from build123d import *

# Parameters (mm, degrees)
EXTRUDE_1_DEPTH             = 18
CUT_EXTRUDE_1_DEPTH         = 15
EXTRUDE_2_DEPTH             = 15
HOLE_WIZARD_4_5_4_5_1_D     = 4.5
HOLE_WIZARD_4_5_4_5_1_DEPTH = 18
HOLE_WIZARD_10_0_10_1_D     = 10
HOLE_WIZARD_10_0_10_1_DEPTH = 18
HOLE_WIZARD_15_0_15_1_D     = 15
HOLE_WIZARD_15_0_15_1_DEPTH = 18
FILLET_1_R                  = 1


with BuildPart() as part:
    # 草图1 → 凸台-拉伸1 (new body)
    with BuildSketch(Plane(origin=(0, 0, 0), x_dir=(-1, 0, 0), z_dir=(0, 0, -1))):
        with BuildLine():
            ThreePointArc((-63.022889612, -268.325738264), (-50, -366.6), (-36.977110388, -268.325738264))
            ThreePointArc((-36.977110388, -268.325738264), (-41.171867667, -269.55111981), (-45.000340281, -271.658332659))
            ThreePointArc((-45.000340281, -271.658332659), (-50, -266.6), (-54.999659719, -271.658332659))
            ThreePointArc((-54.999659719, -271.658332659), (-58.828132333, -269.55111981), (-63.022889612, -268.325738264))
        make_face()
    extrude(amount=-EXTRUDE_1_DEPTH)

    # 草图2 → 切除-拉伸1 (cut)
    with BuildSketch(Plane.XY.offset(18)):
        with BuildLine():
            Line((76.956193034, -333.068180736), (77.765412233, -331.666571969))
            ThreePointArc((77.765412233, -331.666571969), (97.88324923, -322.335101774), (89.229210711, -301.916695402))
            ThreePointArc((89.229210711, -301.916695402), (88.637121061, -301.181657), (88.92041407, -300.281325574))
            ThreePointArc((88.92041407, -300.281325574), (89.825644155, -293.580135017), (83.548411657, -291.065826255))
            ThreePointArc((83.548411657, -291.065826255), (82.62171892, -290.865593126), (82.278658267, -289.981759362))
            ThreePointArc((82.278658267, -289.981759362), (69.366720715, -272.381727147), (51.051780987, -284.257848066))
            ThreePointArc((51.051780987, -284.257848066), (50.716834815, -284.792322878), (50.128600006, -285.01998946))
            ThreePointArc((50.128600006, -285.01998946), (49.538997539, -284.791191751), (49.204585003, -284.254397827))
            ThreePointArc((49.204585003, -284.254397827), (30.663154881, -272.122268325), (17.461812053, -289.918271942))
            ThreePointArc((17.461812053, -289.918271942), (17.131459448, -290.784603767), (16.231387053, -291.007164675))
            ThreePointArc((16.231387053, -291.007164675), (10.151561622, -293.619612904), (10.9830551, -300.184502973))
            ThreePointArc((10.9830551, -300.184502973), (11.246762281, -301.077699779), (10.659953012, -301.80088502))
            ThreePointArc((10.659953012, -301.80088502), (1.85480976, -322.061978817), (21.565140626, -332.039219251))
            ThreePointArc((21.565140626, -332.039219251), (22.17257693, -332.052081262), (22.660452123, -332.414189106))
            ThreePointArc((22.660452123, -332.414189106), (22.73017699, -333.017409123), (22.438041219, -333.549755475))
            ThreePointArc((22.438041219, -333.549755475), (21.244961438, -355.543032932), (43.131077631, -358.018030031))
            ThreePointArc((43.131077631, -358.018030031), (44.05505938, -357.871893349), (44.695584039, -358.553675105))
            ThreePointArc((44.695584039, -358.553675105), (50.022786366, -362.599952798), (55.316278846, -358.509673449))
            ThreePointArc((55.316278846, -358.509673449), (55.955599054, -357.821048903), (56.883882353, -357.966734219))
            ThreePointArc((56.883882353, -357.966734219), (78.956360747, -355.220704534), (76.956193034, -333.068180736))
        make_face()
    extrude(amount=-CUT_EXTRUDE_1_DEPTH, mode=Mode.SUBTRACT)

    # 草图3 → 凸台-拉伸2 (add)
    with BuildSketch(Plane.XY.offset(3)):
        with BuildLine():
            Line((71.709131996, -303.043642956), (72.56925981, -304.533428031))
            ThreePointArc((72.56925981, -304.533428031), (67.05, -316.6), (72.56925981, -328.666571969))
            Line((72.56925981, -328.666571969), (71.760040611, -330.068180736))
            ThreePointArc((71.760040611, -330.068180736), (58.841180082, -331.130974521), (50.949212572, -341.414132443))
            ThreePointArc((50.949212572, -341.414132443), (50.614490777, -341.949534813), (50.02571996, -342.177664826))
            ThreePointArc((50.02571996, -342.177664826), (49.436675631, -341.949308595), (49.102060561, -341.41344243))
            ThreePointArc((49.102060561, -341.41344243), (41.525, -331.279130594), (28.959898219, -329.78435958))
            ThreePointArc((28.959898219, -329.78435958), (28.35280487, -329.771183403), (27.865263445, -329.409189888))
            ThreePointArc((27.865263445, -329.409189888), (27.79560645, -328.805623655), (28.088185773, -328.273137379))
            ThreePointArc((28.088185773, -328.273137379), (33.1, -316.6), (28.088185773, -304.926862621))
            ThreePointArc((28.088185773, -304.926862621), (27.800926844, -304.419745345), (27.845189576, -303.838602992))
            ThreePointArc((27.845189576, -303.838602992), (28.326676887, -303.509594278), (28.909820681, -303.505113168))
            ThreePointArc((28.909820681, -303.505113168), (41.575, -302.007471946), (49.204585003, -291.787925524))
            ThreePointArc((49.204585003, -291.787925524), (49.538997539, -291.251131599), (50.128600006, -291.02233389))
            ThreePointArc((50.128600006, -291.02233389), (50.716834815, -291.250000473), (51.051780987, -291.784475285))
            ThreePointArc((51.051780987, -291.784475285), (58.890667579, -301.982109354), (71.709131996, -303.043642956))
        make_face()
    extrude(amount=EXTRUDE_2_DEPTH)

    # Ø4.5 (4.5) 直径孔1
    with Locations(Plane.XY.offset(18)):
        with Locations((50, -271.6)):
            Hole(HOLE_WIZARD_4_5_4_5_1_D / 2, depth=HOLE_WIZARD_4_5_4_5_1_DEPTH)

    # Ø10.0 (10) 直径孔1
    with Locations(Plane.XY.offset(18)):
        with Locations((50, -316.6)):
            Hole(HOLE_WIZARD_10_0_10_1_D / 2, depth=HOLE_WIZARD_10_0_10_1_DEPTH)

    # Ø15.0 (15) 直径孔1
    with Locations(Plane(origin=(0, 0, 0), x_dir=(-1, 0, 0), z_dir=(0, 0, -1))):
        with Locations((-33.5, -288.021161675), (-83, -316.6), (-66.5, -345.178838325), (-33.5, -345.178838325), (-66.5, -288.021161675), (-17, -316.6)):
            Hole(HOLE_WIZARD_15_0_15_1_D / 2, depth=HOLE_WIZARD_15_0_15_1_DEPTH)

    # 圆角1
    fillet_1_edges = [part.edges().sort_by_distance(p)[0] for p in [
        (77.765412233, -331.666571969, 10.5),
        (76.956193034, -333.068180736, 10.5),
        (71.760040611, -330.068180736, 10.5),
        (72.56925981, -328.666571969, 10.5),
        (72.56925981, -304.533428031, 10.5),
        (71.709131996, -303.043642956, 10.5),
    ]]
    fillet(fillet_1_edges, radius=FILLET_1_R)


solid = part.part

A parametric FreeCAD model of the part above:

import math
import FreeCAD as App
import Part
import Sketcher
from FreeCAD import Vector
Q = App.Units.Quantity


def edges_at(feature, points):
    """Names of the edges that pass closest to the given points."""
    edges = feature.Shape.Edges
    near = lambda p: min(range(len(edges)), key=lambda i: edges[i].distToShape(Part.Vertex(*p))[0])
    return sorted({f"Edge{near(p) + 1}" for p in points})

doc = App.newDocument("Part")
body = doc.addObject("PartDesign::Body", "Body")

# Sketch on XY plane
sketch1 = body.newObject("Sketcher::SketchObject", "Sketch")
sketch1.AttachmentSupport = (doc.getObject("XY_Plane"), [""])
sketch1.MapMode = "FlatFace"
sketch1.addGeometry(Part.ArcOfCircle(Part.Circle(Vector(50, -317, 0), Vector(0, 0, 1), 50), math.radians(105), math.radians(435)), False)
sketch1.addGeometry(Part.ArcOfCircle(Part.Circle(Vector(34, -288, 0), Vector(0, 0, 1), 20), math.radians(55), math.radians(80)), False)
sketch1.addGeometry(Part.ArcOfCircle(Part.Circle(Vector(50, -272, 0), Vector(0, 0, 1), 5), math.radians(-1), math.radians(181)), False)
sketch1.addGeometry(Part.ArcOfCircle(Part.Circle(Vector(66, -288, 0), Vector(0, 0, 1), 20), math.radians(100), math.radians(125)), False)
sketch1.addConstraint(Sketcher.Constraint("Coincident", 0, 1, 1, 2))
sketch1.addConstraint(Sketcher.Constraint("Coincident", 1, 1, 2, 2))
sketch1.addConstraint(Sketcher.Constraint("Coincident", 2, 1, 3, 2))
sketch1.addConstraint(Sketcher.Constraint("Coincident", 3, 1, 0, 2))
sketch1.addConstraint(Sketcher.Constraint("Equal", 1, 3))
sketch1.addConstraint(Sketcher.Constraint("Horizontal", 1, 3, 3, 3))
sketch1.addConstraint(Sketcher.Constraint("Horizontal", 1, 1, 2, 1))
sketch1.addConstraint(Sketcher.Constraint("Horizontal", 0, 1, 3, 1))
sketch1.addConstraint(Sketcher.Constraint("Radius", 0, Q("50 mm")))
sketch1.addConstraint(Sketcher.Constraint("Radius", 1, Q("20 mm")))
sketch1.addConstraint(Sketcher.Constraint("Radius", 2, Q("5 mm")))
sketch1.addConstraint(Sketcher.Constraint("DistanceX", -1, 1, 0, 3, Q("50 mm")))
sketch1.addConstraint(Sketcher.Constraint("DistanceY", 0, 3, 2, 3, Q("45 mm")))
sketch1.addConstraint(Sketcher.Constraint("DistanceX", 1, 3, 3, 3, Q("33 mm")))
sketch1.addConstraint(Sketcher.Constraint("DistanceY", 0, 3, -1, 1, Q("316.6 mm")))
sketch1.addConstraint(Sketcher.Constraint("DistanceY", 1, 3, -1, 1, Q("288.021162 mm")))
pad1 = body.newObject("PartDesign::Pad", "Pad")
pad1.Profile = sketch1
pad1.Length = 18

# Sketch on XY plane
sketch2 = body.newObject("Sketcher::SketchObject", "Sketch001")
sketch2.AttachmentSupport = (doc.getObject("XY_Plane"), [""])
sketch2.MapMode = "FlatFace"
sketch2.AttachmentOffset = App.Placement(Vector(0, 0, 18), App.Rotation())
sketch2.addGeometry(Part.LineSegment(Vector(77, -333.1, 0), Vector(77.8, -331.7, 0)), False)
sketch2.addGeometry(Part.ArcOfCircle(Part.Circle(Vector(83, -316.6, 0), Vector(0, 0, 1), 15.9), math.radians(-109), math.radians(67)), False)
sketch2.addGeometry(Part.ArcOfCircle(Part.Circle(Vector(89.6, -301, 0), Vector(0, 0, 1), 1), math.radians(134), math.radians(247)), False)
sketch2.addGeometry(Part.ArcOfCircle(Part.Circle(Vector(85.1, -296.4, 0), Vector(0, 0, 1), 5.5), math.radians(-46), math.radians(106)), False)
sketch2.addGeometry(Part.ArcOfCircle(Part.Circle(Vector(83.3, -290.1, 0), Vector(0, 0, 1), 1), math.radians(173), math.radians(286)), False)
sketch2.addGeometry(Part.ArcOfCircle(Part.Circle(Vector(66.5, -288, 0), Vector(0, 0, 1), 15.9), math.radians(-7), math.radians(166)), False)
sketch2.addGeometry(Part.ArcOfCircle(Part.Circle(Vector(50.1, -284, 0), Vector(0, 0, 1), 1), math.radians(-87), math.radians(-14)), False)
sketch2.addGeometry(Part.ArcOfCircle(Part.Circle(Vector(50.2, -284, 0), Vector(0, 0, 1), 1), math.radians(-167), math.radians(-93)), False)
sketch2.addGeometry(Part.ArcOfCircle(Part.Circle(Vector(33.5, -288, 0), Vector(0, 0, 1), 16.1), math.radians(13), math.radians(187)), False)
sketch2.addGeometry(Part.ArcOfCircle(Part.Circle(Vector(16.5, -290, 0), Vector(0, 0, 1), 1), math.radians(-104), math.radians(7)), False)
sketch2.addGeometry(Part.ArcOfCircle(Part.Circle(Vector(14.9, -296.4, 0), Vector(0, 0, 1), 5.5), math.radians(76), math.radians(224)), False)
sketch2.addGeometry(Part.ArcOfCircle(Part.Circle(Vector(10.3, -300.9, 0), Vector(0, 0, 1), 1), math.radians(-67), math.radians(44)), False)
sketch2.addGeometry(Part.ArcOfCircle(Part.Circle(Vector(17, -316.6, 0), Vector(0, 0, 1), 16.1), math.radians(113), math.radians(286)), False)
sketch2.addGeometry(Part.ArcOfCircle(Part.Circle(Vector(21.8, -333, 0), Vector(0, 0, 1), 1), math.radians(36), math.radians(106)), False)
sketch2.addGeometry(Part.ArcOfCircle(Part.Circle(Vector(21.7, -332.8, 0), Vector(0, 0, 1), 1), math.radians(-46), math.radians(24)), False)
sketch2.addGeometry(Part.ArcOfCircle(Part.Circle(Vector(33.5, -345.2, 0), Vector(0, 0, 1), 16.1), math.radians(134), math.radians(307)), False)
sketch2.addGeometry(Part.ArcOfCircle(Part.Circle(Vector(43.7, -358.8, 0), Vector(0, 0, 1), 1), math.radians(15), math.radians(127)), False)
sketch2.addGeometry(Part.ArcOfCircle(Part.Circle(Vector(50, -357.1, 0), Vector(0, 0, 1), 5.5), math.radians(-165), math.radians(-15)), False)
sketch2.addGeometry(Part.ArcOfCircle(Part.Circle(Vector(56.3, -358.8, 0), Vector(0, 0, 1), 1), math.radians(53), math.radians(165)), False)
sketch2.addGeometry(Part.ArcOfCircle(Part.Circle(Vector(66.5, -345.2, 0), Vector(0, 0, 1), 16), math.radians(-127), math.radians(49)), False)
sketch2.addConstraint(Sketcher.Constraint("Coincident", 0, 2, 1, 1))
sketch2.addConstraint(Sketcher.Constraint("Tangent", 1, 2, 2, 2))
sketch2.addConstraint(Sketcher.Constraint("Tangent", 2, 1, 3, 1))
sketch2.addConstraint(Sketcher.Constraint("Tangent", 3, 2, 4, 2))
sketch2.addConstraint(Sketcher.Constraint("Tangent", 4, 1, 5, 1))
sketch2.addConstraint(Sketcher.Constraint("Tangent", 5, 2, 6, 2))
sketch2.addConstraint(Sketcher.Constraint("Coincident", 6, 1, 7, 2))
sketch2.addConstraint(Sketcher.Constraint("Tangent", 7, 1, 8, 1))
sketch2.addConstraint(Sketcher.Constraint("Tangent", 8, 2, 9, 2))
sketch2.addConstraint(Sketcher.Constraint("Tangent", 9, 1, 10, 1))
sketch2.addConstraint(Sketcher.Constraint("Tangent", 10, 2, 11, 2))
sketch2.addConstraint(Sketcher.Constraint("Tangent", 11, 1, 12, 1))
sketch2.addConstraint(Sketcher.Constraint("Tangent", 12, 2, 13, 2))
sketch2.addConstraint(Sketcher.Constraint("Coincident", 13, 1, 14, 2))
sketch2.addConstraint(Sketcher.Constraint("Tangent", 14, 1, 15, 1))
sketch2.addConstraint(Sketcher.Constraint("Tangent", 15, 2, 16, 2))
sketch2.addConstraint(Sketcher.Constraint("Tangent", 16, 1, 17, 1))
sketch2.addConstraint(Sketcher.Constraint("Tangent", 17, 2, 18, 2))
sketch2.addConstraint(Sketcher.Constraint("Tangent", 18, 1, 19, 1))
sketch2.addConstraint(Sketcher.Constraint("Coincident", 19, 2, 0, 1))
sketch2.addConstraint(Sketcher.Constraint("Equal", 2, 4))
sketch2.addConstraint(Sketcher.Constraint("Equal", 4, 6))
sketch2.addConstraint(Sketcher.Constraint("Equal", 6, 7))
sketch2.addConstraint(Sketcher.Constraint("Equal", 7, 9))
sketch2.addConstraint(Sketcher.Constraint("Equal", 3, 10))
sketch2.addConstraint(Sketcher.Constraint("Equal", 9, 11))
sketch2.addConstraint(Sketcher.Constraint("Equal", 11, 13))
sketch2.addConstraint(Sketcher.Constraint("Equal", 13, 14))
sketch2.addConstraint(Sketcher.Constraint("Equal", 14, 16))
sketch2.addConstraint(Sketcher.Constraint("Equal", 10, 17))
sketch2.addConstraint(Sketcher.Constraint("Equal", 16, 18))
sketch2.addConstraint(Sketcher.Constraint("Horizontal", 6, 3, 7, 3))
sketch2.addConstraint(Sketcher.Constraint("Horizontal", 5, 3, 8, 3))
sketch2.addConstraint(Sketcher.Constraint("Horizontal", 3, 3, 10, 3))
sketch2.addConstraint(Sketcher.Constraint("Horizontal", 1, 3, 12, 3))
sketch2.addConstraint(Sketcher.Constraint("Horizontal", 15, 3, 19, 3))
sketch2.addConstraint(Sketcher.Constraint("Vertical", 8, 3, 15, 3))
sketch2.addConstraint(Sketcher.Constraint("Vertical", 5, 3, 19, 3))
sketch2.addConstraint(Sketcher.Constraint("Radius", 2, Q("1 mm")))
sketch2.addConstraint(Sketcher.Constraint("Radius", 19, Q("16 mm")))
sketch2.addConstraint(Sketcher.Constraint("Radius", 3, Q("5.5 mm")))
sketch2.addConstraint(Sketcher.Constraint("Radius", 5, Q("15.9 mm")))
sketch2.addConstraint(Sketcher.Constraint("Radius", 12, Q("16.1 mm")))
sketch2.addConstraint(Sketcher.Constraint("Angle", 0, Q("60 deg")))
sketch2.addConstraint(Sketcher.Constraint("Radius", 1, Q("15.95 mm")))
sketch2.addConstraint(Sketcher.Constraint("Radius", 8, Q("16.15 mm")))
sketch2.addConstraint(Sketcher.Constraint("Radius", 15, Q("16.05 mm")))
sketch2.addConstraint(Sketcher.Constraint("DistanceX", -1, 1, 1, 3, Q("83 mm")))
sketch2.addConstraint(Sketcher.Constraint("DistanceX", -1, 1, 12, 3, Q("17 mm")))
sketch2.addConstraint(Sketcher.Constraint("DistanceX", -1, 1, 17, 3, Q("50 mm")))
sketch2.addConstraint(Sketcher.Constraint("DistanceY", 5, 3, 6, 3, Q("4 mm")))
sketch2.addConstraint(Sketcher.Constraint("DistanceX", 8, 3, 5, 3, Q("33 mm")))
sketch2.addConstraint(Sketcher.Constraint("DistanceY", 1, 3, -1, 1, Q("316.6 mm")))
sketch2.addConstraint(Sketcher.Constraint("DistanceX", -1, 1, 5, 3, Q("66.5 mm")))
sketch2.addConstraint(Sketcher.Constraint("DistanceY", 17, 3, -1, 1, Q("357.1 mm")))
sketch2.addConstraint(Sketcher.Constraint("DistanceY", 3, 3, -1, 1, Q("296.35 mm")))
sketch2.addConstraint(Sketcher.Constraint("DistanceY", 18, 3, 13, 3, Q("25.767801 mm")))
sketch2.addConstraint(Sketcher.Constraint("DistanceY", 2, 1, 3, 2, Q("9.215499 mm")))
sketch2.addConstraint(Sketcher.Constraint("DistanceX", 3, 2, 1, 2, Q("5.680799 mm")))
sketch2.addConstraint(Sketcher.Constraint("DistanceY", 11, 1, 11, 3, Q("0.9192 mm")))
sketch2.addConstraint(Sketcher.Constraint("DistanceX", 12, 2, 14, 1, Q("0.872901 mm")))
sketch2.addConstraint(Sketcher.Constraint("DistanceX", 15, 2, 17, 2, Q("12.185201 mm")))
sketch2.addConstraint(Sketcher.Constraint("Distance", 0, Q("1.618438 mm")))
pocket1 = body.newObject("PartDesign::Pocket", "Pocket")
pocket1.Profile = sketch2
pocket1.Length = 15

# Sketch on XY plane
sketch3 = body.newObject("Sketcher::SketchObject", "Sketch002")
sketch3.AttachmentSupport = (doc.getObject("XY_Plane"), [""])
sketch3.MapMode = "FlatFace"
sketch3.AttachmentOffset = App.Placement(Vector(0, 0, 3), App.Rotation())
sketch3.addGeometry(Part.LineSegment(Vector(72.6, -304.5, 0), Vector(71.7, -303, 0)), False)
sketch3.addGeometry(Part.ArcOfCircle(Part.Circle(Vector(66.5, -288, 0), Vector(0, 0, 1), 15.9), math.radians(-166), math.radians(-71)), False)
sketch3.addGeometry(Part.ArcOfCircle(Part.Circle(Vector(50.1, -292, 0), Vector(0, 0, 1), 1), math.radians(14), math.radians(87)), False)
sketch3.addGeometry(Part.ArcOfCircle(Part.Circle(Vector(50.2, -292, 0), Vector(0, 0, 1), 1), math.radians(93), math.radians(167)), False)
sketch3.addGeometry(Part.ArcOfCircle(Part.Circle(Vector(33.5, -288, 0), Vector(0, 0, 1), 16.2), math.radians(-107), math.radians(-13)), False)
sketch3.addGeometry(Part.ArcOfCircle(Part.Circle(Vector(28.6, -304.5, 0), Vector(0, 0, 1), 1), math.radians(73), math.radians(141)), False)
sketch3.addGeometry(Part.ArcOfCircle(Part.Circle(Vector(28.8, -304.2, 0), Vector(0, 0, 1), 1), math.radians(159), math.radians(226)), False)
sketch3.addGeometry(Part.ArcOfCircle(Part.Circle(Vector(17, -316.6, 0), Vector(0, 0, 1), 16.1), math.radians(-46), math.radians(46)), False)
sketch3.addGeometry(Part.ArcOfCircle(Part.Circle(Vector(28.8, -329, 0), Vector(0, 0, 1), 1), math.radians(134), math.radians(204)), False)
sketch3.addGeometry(Part.ArcOfCircle(Part.Circle(Vector(28.7, -328.8, 0), Vector(0, 0, 1), 1), math.radians(-144), math.radians(-74)), False)
sketch3.addGeometry(Part.ArcOfCircle(Part.Circle(Vector(33.5, -345.2, 0), Vector(0, 0, 1), 16.1), math.radians(14), math.radians(106)), False)
sketch3.addGeometry(Part.ArcOfCircle(Part.Circle(Vector(50.1, -341.2, 0), Vector(0, 0, 1), 1), math.radians(-166), math.radians(-93)), False)
sketch3.addGeometry(Part.ArcOfCircle(Part.Circle(Vector(50, -341.2, 0), Vector(0, 0, 1), 1), math.radians(-87), math.radians(-14)), False)
sketch3.addGeometry(Part.ArcOfCircle(Part.Circle(Vector(66.5, -345.2, 0), Vector(0, 0, 1), 16), math.radians(71), math.radians(166)), False)
sketch3.addGeometry(Part.LineSegment(Vector(71.8, -330.1, 0), Vector(72.6, -328.7, 0)), False)
sketch3.addGeometry(Part.ArcOfCircle(Part.Circle(Vector(83, -316.6, 0), Vector(0, 0, 1), 15.9), math.radians(131), math.radians(229)), False)
sketch3.addConstraint(Sketcher.Constraint("Coincident", 0, 2, 1, 2))
sketch3.addConstraint(Sketcher.Constraint("Tangent", 1, 1, 2, 1))
sketch3.addConstraint(Sketcher.Constraint("Coincident", 2, 2, 3, 1))
sketch3.addConstraint(Sketcher.Constraint("Tangent", 3, 2, 4, 2))
sketch3.addConstraint(Sketcher.Constraint("Tangent", 4, 1, 5, 1))
sketch3.addConstraint(Sketcher.Constraint("Coincident", 5, 2, 6, 1))
sketch3.addConstraint(Sketcher.Constraint("Tangent", 6, 2, 7, 2))
sketch3.addConstraint(Sketcher.Constraint("Tangent", 7, 1, 8, 1))
sketch3.addConstraint(Sketcher.Constraint("Coincident", 8, 2, 9, 1))
sketch3.addConstraint(Sketcher.Constraint("Tangent", 9, 2, 10, 2))
sketch3.addConstraint(Sketcher.Constraint("Tangent", 10, 1, 11, 1))
sketch3.addConstraint(Sketcher.Constraint("Coincident", 11, 2, 12, 1))
sketch3.addConstraint(Sketcher.Constraint("Tangent", 12, 2, 13, 2))
sketch3.addConstraint(Sketcher.Constraint("Coincident", 13, 1, 14, 1))
sketch3.addConstraint(Sketcher.Constraint("Coincident", 14, 2, 15, 2))
sketch3.addConstraint(Sketcher.Constraint("Coincident", 15, 1, 0, 1))
sketch3.addConstraint(Sketcher.Constraint("Equal", 2, 3))
sketch3.addConstraint(Sketcher.Constraint("Equal", 3, 5))
sketch3.addConstraint(Sketcher.Constraint("Equal", 5, 6))
sketch3.addConstraint(Sketcher.Constraint("Equal", 6, 8))
sketch3.addConstraint(Sketcher.Constraint("Equal", 8, 9))
sketch3.addConstraint(Sketcher.Constraint("Equal", 9, 11))
sketch3.addConstraint(Sketcher.Constraint("Equal", 11, 12))
sketch3.addConstraint(Sketcher.Constraint("Horizontal", 2, 3, 3, 3))
sketch3.addConstraint(Sketcher.Constraint("Horizontal", 1, 3, 4, 3))
sketch3.addConstraint(Sketcher.Constraint("Horizontal", 11, 3, 12, 3))
sketch3.addConstraint(Sketcher.Constraint("Horizontal", 10, 3, 13, 3))
sketch3.addConstraint(Sketcher.Constraint("Horizontal", 7, 3, 15, 3))
sketch3.addConstraint(Sketcher.Constraint("Vertical", 6, 3, 8, 3))
sketch3.addConstraint(Sketcher.Constraint("Vertical", 4, 3, 10, 3))
sketch3.addConstraint(Sketcher.Constraint("Vertical", 1, 3, 13, 3))
sketch3.addConstraint(Sketcher.Constraint("Vertical", 14, 2, 15, 1))
sketch3.addConstraint(Sketcher.Constraint("Radius", 2, Q("1 mm")))
sketch3.addConstraint(Sketcher.Constraint("Radius", 13, Q("16 mm")))
sketch3.addConstraint(Sketcher.Constraint("Radius", 1, Q("15.9 mm")))
sketch3.addConstraint(Sketcher.Constraint("Radius", 7, Q("16.1 mm")))
sketch3.addConstraint(Sketcher.Constraint("Angle", 0, Q("120 deg")))
sketch3.addConstraint(Sketcher.Constraint("Angle", 14, Q("60 deg")))
sketch3.addConstraint(Sketcher.Constraint("Radius", 4, Q("16.15 mm")))
sketch3.addConstraint(Sketcher.Constraint("Radius", 10, Q("16.05 mm")))
sketch3.addConstraint(Sketcher.Constraint("Radius", 15, Q("15.95 mm")))
sketch3.addConstraint(Sketcher.Constraint("DistanceX", -1, 1, 7, 3, Q("17 mm")))
sketch3.addConstraint(Sketcher.Constraint("DistanceX", -1, 1, 15, 3, Q("83 mm")))
sketch3.addConstraint(Sketcher.Constraint("DistanceY", 2, 3, 1, 3, Q("4 mm")))
sketch3.addConstraint(Sketcher.Constraint("DistanceX", 4, 3, 1, 3, Q("33 mm")))
sketch3.addConstraint(Sketcher.Constraint("DistanceY", 10, 3, 11, 3, Q("4 mm")))
sketch3.addConstraint(Sketcher.Constraint("DistanceX", -1, 1, 1, 3, Q("66.5 mm")))
sketch3.addConstraint(Sketcher.Constraint("DistanceY", 7, 3, -1, 1, Q("316.6 mm")))
sketch3.addConstraint(Sketcher.Constraint("DistanceX", -1, 1, 5, 3, Q("28.625599 mm")))
sketch3.addConstraint(Sketcher.Constraint("DistanceX", -1, 1, 9, 2, Q("28.959898 mm")))
sketch3.addConstraint(Sketcher.Constraint("DistanceX", 6, 3, 2, 3, Q("21.303302 mm")))
sketch3.addConstraint(Sketcher.Constraint("DistanceY", 10, 3, 7, 1, Q("16.905701 mm")))
sketch3.addConstraint(Sketcher.Constraint("Distance", 14, Q("1.618438 mm")))
sketch3.addConstraint(Sketcher.Constraint("DistanceY", 1, 3, -1, 1, Q("288.021162 mm")))
pad2 = body.newObject("PartDesign::Pad", "Pad001")
pad2.Profile = sketch3
pad2.Length = 15

# Sketch on XY plane
sketch4 = body.newObject("Sketcher::SketchObject", "Sketch003")
sketch4.AttachmentSupport = (doc.getObject("XY_Plane"), [""])
sketch4.MapMode = "FlatFace"
sketch4.AttachmentOffset = App.Placement(Vector(0, 0, 18), App.Rotation())
sketch4.addGeometry(Part.Circle(Vector(50, -271.6, 0), Vector(0, 0, 1), 2.2), False)
sketch4.addConstraint(Sketcher.Constraint("Diameter", 0, Q("4.5 mm")))
sketch4.addConstraint(Sketcher.Constraint("DistanceX", -1, 1, 0, 3, Q("50 mm")))
sketch4.addConstraint(Sketcher.Constraint("DistanceY", 0, 3, -1, 1, Q("271.6 mm")))
doc.recompute()
hole = body.newObject("PartDesign::Hole", "Hole")
hole.Profile = sketch4
hole.ThreadType = "None"
hole.Diameter = 4.5
hole.DepthType = "Dimension"
hole.Depth = 18
hole.DrillPoint = "Flat"

# Sketch on XY plane
sketch5 = body.newObject("Sketcher::SketchObject", "Sketch004")
sketch5.AttachmentSupport = (doc.getObject("XY_Plane"), [""])
sketch5.MapMode = "FlatFace"
sketch5.AttachmentOffset = App.Placement(Vector(0, 0, 18), App.Rotation())
sketch5.addGeometry(Part.Circle(Vector(50, -317, 0), Vector(0, 0, 1), 5), False)
sketch5.addConstraint(Sketcher.Constraint("Diameter", 0, Q("10 mm")))
sketch5.addConstraint(Sketcher.Constraint("DistanceX", -1, 1, 0, 3, Q("50 mm")))
sketch5.addConstraint(Sketcher.Constraint("DistanceY", 0, 3, -1, 1, Q("316.6 mm")))
doc.recompute()
hole2 = body.newObject("PartDesign::Hole", "Hole001")
hole2.Profile = sketch5
hole2.ThreadType = "None"
hole2.Diameter = 10
hole2.DepthType = "Dimension"
hole2.Depth = 18
hole2.DrillPoint = "Flat"

# Sketch on XY plane
sketch6 = body.newObject("Sketcher::SketchObject", "Sketch005")
sketch6.AttachmentSupport = (doc.getObject("XY_Plane"), [""])
sketch6.MapMode = "FlatFace"
sketch6.addGeometry(Part.Circle(Vector(34, -288, 0), Vector(0, 0, 1), 8), False)
sketch6.addGeometry(Part.Circle(Vector(83, -317, 0), Vector(0, 0, 1), 8), False)
sketch6.addGeometry(Part.Circle(Vector(66, -345, 0), Vector(0, 0, 1), 8), False)
sketch6.addGeometry(Part.Circle(Vector(34, -345, 0), Vector(0, 0, 1), 8), False)
sketch6.addGeometry(Part.Circle(Vector(66, -288, 0), Vector(0, 0, 1), 8), False)
sketch6.addGeometry(Part.Circle(Vector(17, -317, 0), Vector(0, 0, 1), 8), False)
sketch6.addConstraint(Sketcher.Constraint("Equal", 0, 1))
sketch6.addConstraint(Sketcher.Constraint("Equal", 1, 2))
sketch6.addConstraint(Sketcher.Constraint("Equal", 2, 3))
sketch6.addConstraint(Sketcher.Constraint("Equal", 3, 4))
sketch6.addConstraint(Sketcher.Constraint("Equal", 4, 5))
sketch6.addConstraint(Sketcher.Constraint("Horizontal", 2, 3, 3, 3))
sketch6.addConstraint(Sketcher.Constraint("Horizontal", 0, 3, 4, 3))
sketch6.addConstraint(Sketcher.Constraint("Horizontal", 1, 3, 5, 3))
sketch6.addConstraint(Sketcher.Constraint("Vertical", 0, 3, 3, 3))
sketch6.addConstraint(Sketcher.Constraint("Vertical", 2, 3, 4, 3))
sketch6.addConstraint(Sketcher.Constraint("Diameter", 0, Q("15 mm")))
sketch6.addConstraint(Sketcher.Constraint("DistanceX", -1, 1, 1, 3, Q("83 mm")))
sketch6.addConstraint(Sketcher.Constraint("DistanceX", -1, 1, 5, 3, Q("17 mm")))
sketch6.addConstraint(Sketcher.Constraint("DistanceX", 0, 3, 2, 3, Q("33 mm")))
sketch6.addConstraint(Sketcher.Constraint("DistanceX", -1, 1, 0, 3, Q("33.5 mm")))
sketch6.addConstraint(Sketcher.Constraint("DistanceY", 1, 3, -1, 1, Q("316.6 mm")))
sketch6.addConstraint(Sketcher.Constraint("DistanceY", 0, 3, -1, 1, Q("288.021162 mm")))
sketch6.addConstraint(Sketcher.Constraint("DistanceY", 2, 3, -1, 1, Q("345.178838 mm")))
doc.recompute()
hole3 = body.newObject("PartDesign::Hole", "Hole002")
hole3.Profile = sketch6
hole3.ThreadType = "None"
hole3.Diameter = 15
hole3.DepthType = "Dimension"
hole3.Depth = 18
hole3.DrillPoint = "Flat"
hole3.Reversed = True
doc.recompute()

fillet = body.newObject("PartDesign::Fillet", "Fillet")
fillet.Base = (hole3, edges_at(hole3, [
    (77.765, -331.667, 10.5),
    (76.956, -333.068, 10.5),
    (71.76, -330.068, 10.5),
    (72.569, -328.667, 10.5),
    (72.569, -304.533, 10.5),
    (71.709, -303.044, 10.5),
]))
fillet.Radius = 1

doc.recompute()
